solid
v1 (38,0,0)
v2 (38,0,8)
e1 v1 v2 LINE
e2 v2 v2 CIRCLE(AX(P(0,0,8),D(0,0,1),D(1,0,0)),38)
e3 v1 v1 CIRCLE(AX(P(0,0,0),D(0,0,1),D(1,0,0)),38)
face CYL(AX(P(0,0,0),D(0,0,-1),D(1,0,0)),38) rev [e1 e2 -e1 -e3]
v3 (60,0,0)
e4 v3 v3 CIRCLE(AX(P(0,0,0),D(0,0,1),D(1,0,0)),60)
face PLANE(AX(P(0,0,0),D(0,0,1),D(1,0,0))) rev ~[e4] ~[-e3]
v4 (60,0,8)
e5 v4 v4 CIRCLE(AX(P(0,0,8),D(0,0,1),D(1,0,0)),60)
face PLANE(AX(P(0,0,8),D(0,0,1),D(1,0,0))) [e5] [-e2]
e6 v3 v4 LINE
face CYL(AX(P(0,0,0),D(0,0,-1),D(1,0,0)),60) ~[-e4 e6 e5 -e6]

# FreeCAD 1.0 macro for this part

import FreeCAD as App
import Part
import Sketcher
from FreeCAD import Vector

doc = App.newDocument("Part")
body = doc.addObject("PartDesign::Body", "Body")

# Sketch on XY plane
sketch1 = body.newObject("Sketcher::SketchObject", "Sketch")
sketch1.AttachmentSupport = (doc.getObject("XY_Plane"), [""])
sketch1.MapMode = "FlatFace"
sketch1.addGeometry([
    Part.Circle(Vector(0, 0, 0), Vector(0, 0, 1), 60),
    Part.Circle(Vector(0, 0, 0), Vector(0, 0, 1), 38),
], False)
sketch1.addConstraint([
    Sketcher.Constraint("Coincident", 0, 3, -1, 1),
    Sketcher.Constraint("Coincident", 1, 3, -1, 1),
    Sketcher.Constraint("Diameter", 0, 120.0),
    Sketcher.Constraint("Diameter", 1, 76.0),
])
pad1 = body.newObject("PartDesign::Pad", "Pad")
pad1.Profile = sketch1
pad1.Length = 8

doc.recompute()
